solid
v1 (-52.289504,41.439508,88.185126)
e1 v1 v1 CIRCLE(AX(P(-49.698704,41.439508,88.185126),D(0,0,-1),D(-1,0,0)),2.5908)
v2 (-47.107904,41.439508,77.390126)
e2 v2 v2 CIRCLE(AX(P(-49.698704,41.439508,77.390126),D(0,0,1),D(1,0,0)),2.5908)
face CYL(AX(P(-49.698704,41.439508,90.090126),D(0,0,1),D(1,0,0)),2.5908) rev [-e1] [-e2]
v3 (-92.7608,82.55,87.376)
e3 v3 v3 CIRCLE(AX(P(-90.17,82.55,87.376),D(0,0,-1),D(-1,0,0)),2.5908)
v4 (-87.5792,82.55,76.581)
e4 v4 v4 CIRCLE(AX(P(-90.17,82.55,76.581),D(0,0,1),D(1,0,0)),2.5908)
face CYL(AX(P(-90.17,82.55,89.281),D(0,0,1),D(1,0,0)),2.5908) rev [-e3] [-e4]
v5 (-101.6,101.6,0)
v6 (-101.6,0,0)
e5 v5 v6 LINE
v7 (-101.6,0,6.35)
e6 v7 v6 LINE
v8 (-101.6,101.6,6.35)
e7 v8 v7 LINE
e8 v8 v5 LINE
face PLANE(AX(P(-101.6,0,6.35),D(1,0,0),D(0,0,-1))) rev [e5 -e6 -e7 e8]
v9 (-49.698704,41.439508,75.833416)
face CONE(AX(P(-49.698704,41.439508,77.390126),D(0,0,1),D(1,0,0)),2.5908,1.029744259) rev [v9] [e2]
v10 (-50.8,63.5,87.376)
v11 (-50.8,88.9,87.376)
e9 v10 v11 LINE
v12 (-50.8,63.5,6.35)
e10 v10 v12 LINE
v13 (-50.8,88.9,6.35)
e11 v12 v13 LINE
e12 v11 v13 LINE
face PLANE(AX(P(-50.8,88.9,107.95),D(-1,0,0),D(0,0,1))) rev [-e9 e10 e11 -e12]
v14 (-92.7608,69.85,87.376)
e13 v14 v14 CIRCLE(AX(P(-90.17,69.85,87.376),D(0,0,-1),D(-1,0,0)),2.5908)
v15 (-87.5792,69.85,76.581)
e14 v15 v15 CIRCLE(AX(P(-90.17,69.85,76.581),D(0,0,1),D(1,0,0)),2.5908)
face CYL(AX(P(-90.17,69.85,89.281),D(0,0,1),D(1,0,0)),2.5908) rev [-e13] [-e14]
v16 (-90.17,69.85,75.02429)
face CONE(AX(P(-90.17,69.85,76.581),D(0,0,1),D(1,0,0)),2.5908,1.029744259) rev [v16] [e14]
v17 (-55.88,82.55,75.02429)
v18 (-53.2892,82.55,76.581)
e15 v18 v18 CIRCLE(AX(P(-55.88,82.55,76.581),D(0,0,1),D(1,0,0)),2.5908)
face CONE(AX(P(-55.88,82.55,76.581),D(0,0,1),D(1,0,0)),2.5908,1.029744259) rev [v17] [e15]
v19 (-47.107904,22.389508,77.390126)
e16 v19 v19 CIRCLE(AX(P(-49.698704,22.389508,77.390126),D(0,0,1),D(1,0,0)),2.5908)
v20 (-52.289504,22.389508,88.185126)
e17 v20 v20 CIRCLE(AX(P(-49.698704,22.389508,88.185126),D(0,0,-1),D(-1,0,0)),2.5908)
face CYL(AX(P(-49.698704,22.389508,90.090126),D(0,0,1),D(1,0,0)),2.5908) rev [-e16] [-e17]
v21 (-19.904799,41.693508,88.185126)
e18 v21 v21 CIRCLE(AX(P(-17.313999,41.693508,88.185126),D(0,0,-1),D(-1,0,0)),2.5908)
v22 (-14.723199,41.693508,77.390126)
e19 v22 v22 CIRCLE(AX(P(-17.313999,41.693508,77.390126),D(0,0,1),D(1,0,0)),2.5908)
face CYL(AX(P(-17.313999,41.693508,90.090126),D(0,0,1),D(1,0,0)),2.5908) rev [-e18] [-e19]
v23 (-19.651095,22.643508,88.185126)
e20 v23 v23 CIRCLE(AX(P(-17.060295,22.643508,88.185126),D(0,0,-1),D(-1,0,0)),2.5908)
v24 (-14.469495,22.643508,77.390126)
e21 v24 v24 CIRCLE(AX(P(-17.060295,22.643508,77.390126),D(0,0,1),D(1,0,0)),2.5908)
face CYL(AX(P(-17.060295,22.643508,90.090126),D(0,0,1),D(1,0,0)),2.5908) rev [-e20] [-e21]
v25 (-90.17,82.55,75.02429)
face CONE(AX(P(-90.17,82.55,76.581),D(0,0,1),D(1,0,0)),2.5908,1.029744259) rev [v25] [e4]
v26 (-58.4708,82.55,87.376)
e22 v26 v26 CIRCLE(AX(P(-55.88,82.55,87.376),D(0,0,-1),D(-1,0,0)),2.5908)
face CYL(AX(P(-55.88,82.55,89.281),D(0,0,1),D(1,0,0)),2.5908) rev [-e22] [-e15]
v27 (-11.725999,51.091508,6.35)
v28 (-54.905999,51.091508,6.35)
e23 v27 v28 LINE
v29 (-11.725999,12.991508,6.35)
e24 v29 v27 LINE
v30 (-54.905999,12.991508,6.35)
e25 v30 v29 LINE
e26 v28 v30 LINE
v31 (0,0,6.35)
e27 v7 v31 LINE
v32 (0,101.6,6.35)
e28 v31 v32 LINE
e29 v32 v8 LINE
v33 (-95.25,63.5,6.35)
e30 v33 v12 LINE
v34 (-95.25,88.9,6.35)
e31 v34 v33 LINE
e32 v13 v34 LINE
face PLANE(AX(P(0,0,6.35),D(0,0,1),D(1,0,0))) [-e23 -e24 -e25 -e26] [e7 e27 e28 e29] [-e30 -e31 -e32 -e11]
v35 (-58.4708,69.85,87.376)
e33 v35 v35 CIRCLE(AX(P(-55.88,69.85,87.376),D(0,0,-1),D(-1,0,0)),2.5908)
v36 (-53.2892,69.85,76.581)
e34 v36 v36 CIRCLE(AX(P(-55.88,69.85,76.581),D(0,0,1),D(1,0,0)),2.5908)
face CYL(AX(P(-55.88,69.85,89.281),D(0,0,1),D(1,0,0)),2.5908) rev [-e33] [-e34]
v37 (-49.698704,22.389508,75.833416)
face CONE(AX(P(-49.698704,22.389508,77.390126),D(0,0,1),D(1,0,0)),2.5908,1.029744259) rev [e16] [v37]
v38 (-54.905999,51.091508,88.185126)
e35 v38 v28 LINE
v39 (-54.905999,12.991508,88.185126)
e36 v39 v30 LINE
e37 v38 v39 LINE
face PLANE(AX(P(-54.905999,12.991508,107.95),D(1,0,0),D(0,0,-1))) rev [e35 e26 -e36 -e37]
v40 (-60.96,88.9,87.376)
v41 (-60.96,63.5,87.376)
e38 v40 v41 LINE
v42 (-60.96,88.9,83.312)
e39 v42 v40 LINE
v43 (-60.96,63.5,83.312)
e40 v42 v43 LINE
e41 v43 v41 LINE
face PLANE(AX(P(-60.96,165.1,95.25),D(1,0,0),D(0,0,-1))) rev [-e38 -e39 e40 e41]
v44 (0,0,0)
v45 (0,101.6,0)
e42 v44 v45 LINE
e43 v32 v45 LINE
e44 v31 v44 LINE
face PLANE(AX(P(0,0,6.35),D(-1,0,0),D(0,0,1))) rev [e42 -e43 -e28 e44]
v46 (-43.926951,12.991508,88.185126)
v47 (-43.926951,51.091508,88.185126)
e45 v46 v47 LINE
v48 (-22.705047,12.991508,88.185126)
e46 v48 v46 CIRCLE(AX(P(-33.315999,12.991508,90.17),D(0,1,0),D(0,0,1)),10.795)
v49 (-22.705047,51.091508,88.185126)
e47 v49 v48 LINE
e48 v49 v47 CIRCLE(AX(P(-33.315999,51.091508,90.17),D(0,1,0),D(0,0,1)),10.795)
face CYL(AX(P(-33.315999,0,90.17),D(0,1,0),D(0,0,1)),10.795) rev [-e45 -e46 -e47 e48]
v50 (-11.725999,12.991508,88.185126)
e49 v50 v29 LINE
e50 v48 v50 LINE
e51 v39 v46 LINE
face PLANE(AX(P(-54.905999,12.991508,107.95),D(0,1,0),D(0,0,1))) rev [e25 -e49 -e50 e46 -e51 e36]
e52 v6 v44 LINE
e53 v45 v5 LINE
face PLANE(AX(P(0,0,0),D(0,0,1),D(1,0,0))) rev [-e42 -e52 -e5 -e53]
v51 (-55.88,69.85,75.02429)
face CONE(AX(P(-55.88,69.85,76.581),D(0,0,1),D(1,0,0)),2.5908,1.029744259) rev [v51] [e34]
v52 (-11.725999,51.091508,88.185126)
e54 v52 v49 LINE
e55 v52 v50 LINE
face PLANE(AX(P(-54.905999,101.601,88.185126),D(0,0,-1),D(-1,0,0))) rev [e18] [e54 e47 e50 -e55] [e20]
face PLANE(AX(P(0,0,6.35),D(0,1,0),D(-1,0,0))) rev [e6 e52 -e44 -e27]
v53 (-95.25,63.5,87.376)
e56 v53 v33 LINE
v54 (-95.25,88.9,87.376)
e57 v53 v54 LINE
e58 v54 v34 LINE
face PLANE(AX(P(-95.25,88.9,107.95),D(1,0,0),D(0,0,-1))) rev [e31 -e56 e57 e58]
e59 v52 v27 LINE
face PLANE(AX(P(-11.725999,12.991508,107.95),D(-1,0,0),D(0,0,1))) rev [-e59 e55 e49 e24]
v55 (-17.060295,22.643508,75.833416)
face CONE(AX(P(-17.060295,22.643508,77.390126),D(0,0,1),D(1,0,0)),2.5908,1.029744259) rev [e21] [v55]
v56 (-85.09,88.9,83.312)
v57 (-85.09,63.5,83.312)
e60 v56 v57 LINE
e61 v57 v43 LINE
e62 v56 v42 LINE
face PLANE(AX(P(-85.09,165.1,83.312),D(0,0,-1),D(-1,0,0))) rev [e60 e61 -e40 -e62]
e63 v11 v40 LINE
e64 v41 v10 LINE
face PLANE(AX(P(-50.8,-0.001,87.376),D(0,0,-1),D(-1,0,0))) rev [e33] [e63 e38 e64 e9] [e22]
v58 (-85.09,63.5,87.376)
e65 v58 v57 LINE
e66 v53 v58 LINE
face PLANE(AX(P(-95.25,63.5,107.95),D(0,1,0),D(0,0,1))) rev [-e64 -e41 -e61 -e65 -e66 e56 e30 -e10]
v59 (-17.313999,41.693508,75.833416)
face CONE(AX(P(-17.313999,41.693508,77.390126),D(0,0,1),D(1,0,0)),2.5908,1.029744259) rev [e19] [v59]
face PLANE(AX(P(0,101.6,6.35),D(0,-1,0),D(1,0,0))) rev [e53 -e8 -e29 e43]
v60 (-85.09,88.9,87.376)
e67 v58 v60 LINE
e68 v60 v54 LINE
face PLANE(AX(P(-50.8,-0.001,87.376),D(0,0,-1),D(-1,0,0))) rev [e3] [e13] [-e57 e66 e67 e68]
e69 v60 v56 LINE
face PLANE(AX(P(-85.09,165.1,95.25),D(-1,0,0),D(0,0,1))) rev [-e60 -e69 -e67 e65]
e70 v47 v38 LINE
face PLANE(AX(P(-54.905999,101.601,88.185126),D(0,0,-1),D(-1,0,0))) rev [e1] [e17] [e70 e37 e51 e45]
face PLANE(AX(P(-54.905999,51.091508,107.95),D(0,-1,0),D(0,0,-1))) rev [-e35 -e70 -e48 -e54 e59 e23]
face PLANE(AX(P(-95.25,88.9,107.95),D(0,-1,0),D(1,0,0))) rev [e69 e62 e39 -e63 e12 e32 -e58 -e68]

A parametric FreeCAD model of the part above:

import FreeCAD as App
import Part
import Sketcher

V = App.Vector
Q = App.Units.Quantity

doc = App.newDocument("Part")
body = doc.addObject("PartDesign::Body", "Body")

# Sketch on XY plane
sketch1 = body.newObject("Sketcher::SketchObject", "Sketch")
sketch1.AttachmentSupport = (doc.getObject("XY_Plane"), [""])
sketch1.MapMode = "FlatFace"
sketch1.addGeometry(Part.LineSegment(V(-102, 102, 0), V(-102, 0, 0)), False)
sketch1.addGeometry(Part.LineSegment(V(-102, 0, 0), V(0, 0, 0)), False)
sketch1.addGeometry(Part.LineSegment(V(0, 0, 0), V(0, 102, 0)), False)
sketch1.addGeometry(Part.LineSegment(V(0, 102, 0), V(-102, 102, 0)), False)
sketch1.addConstraint(Sketcher.Constraint("Coincident", 0, 2, 1, 1))
sketch1.addConstraint(Sketcher.Constraint("Coincident", 1, 2, 2, 1))
sketch1.addConstraint(Sketcher.Constraint("Coincident", 2, 2, 3, 1))
sketch1.addConstraint(Sketcher.Constraint("Coincident", 3, 2, 0, 1))
sketch1.addConstraint(Sketcher.Constraint("Vertical", 0))
sketch1.addConstraint(Sketcher.Constraint("Horizontal", 1))
sketch1.addConstraint(Sketcher.Constraint("Vertical", 2))
sketch1.addConstraint(Sketcher.Constraint("Horizontal", 3))
sketch1.addConstraint(Sketcher.Constraint("Coincident", 1, 2, -1, 1))
sketch1.addConstraint(Sketcher.Constraint("Equal", 3, 0))
sketch1.addConstraint(Sketcher.Constraint("DistanceX", 1, 1, 1, 2, Q("4 in")))
pad1 = body.newObject("PartDesign::Pad", "Pad")
pad1.Profile = sketch1
pad1.Length = Q("0.25 in")

# Sketch on XY plane
sketch2 = body.newObject("Sketcher::SketchObject", "Sketch001")
sketch2.AttachmentSupport = (doc.getObject("XY_Plane"), [""])
sketch2.MapMode = "FlatFace"
sketch2.AttachmentOffset = App.Placement(V(0, 0, 0.25 * 25.4), App.Rotation())
sketch2.addGeometry(Part.LineSegment(V(-95, 89, 0), V(-95, 64, 0)), False)
sketch2.addGeometry(Part.LineSegment(V(-95, 64, 0), V(-51, 64, 0)), False)
sketch2.addGeometry(Part.LineSegment(V(-51, 64, 0), V(-51, 89, 0)), False)
sketch2.addGeometry(Part.LineSegment(V(-51, 89, 0), V(-95, 89, 0)), False)
sketch2.addConstraint(Sketcher.Constraint("Coincident", 0, 2, 1, 1))
sketch2.addConstraint(Sketcher.Constraint("Coincident", 1, 2, 2, 1))
sketch2.addConstraint(Sketcher.Constraint("Coincident", 2, 2, 3, 1))
sketch2.addConstraint(Sketcher.Constraint("Coincident", 3, 2, 0, 1))
sketch2.addConstraint(Sketcher.Constraint("Vertical", 0))
sketch2.addConstraint(Sketcher.Constraint("Horizontal", 1))
sketch2.addConstraint(Sketcher.Constraint("Vertical", 2))
sketch2.addConstraint(Sketcher.Constraint("Horizontal", 3))
sketch2.addConstraint(Sketcher.Constraint("DistanceY", 0, 2, 0, 1, Q("1 in")))
sketch2.addConstraint(Sketcher.Constraint("DistanceX", 1, 2, -1, 1, Q("2 in")))
sketch2.addConstraint(Sketcher.Constraint("DistanceX", 1, 1, 1, 2, Q("1.75 in")))
sketch2.addConstraint(Sketcher.Constraint("DistanceY", -1, 1, 0, 2, Q("2.5 in")))
pad2 = body.newObject("PartDesign::Pad", "Pad001")
pad2.Profile = sketch2
pad2.Length = Q("4 in")

# Sketch on XZ plane
sketch3 = body.newObject("Sketcher::SketchObject", "Sketch002")
sketch3.AttachmentSupport = (doc.getObject("XZ_Plane"), [""])
sketch3.MapMode = "FlatFace"
sketch3.AttachmentOffset = App.Placement(V(0, 0, -2.5 * 25.4), App.Rotation())
sketch3.addGeometry(Part.LineSegment(V(-85, 95, 0), V(-85, 83, 0)), False)
sketch3.addGeometry(Part.LineSegment(V(-85, 83, 0), V(-61, 83, 0)), False)
sketch3.addGeometry(Part.LineSegment(V(-61, 83, 0), V(-61, 95, 0)), False)
sketch3.addGeometry(Part.LineSegment(V(-61, 95, 0), V(-85, 95, 0)), False)
sketch3.addConstraint(Sketcher.Constraint("Coincident", 0, 2, 1, 1))
sketch3.addConstraint(Sketcher.Constraint("Coincident", 1, 2, 2, 1))
sketch3.addConstraint(Sketcher.Constraint("Coincident", 2, 2, 3, 1))
sketch3.addConstraint(Sketcher.Constraint("Coincident", 3, 2, 0, 1))
sketch3.addConstraint(Sketcher.Constraint("Vertical", 0))
sketch3.addConstraint(Sketcher.Constraint("Horizontal", 1))
sketch3.addConstraint(Sketcher.Constraint("Vertical", 2))
sketch3.addConstraint(Sketcher.Constraint("Horizontal", 3))
sketch3.addConstraint(Sketcher.Constraint("DistanceX", 1, 1, 1, 2, Q("0.95 in")))
sketch3.addConstraint(Sketcher.Constraint("DistanceY", 0, 2, 0, 1, Q("0.47 in")))
sketch3.addConstraint(Sketcher.Constraint("DistanceX", 1, 2, -1, 1, Q("2.4 in")))
sketch3.addConstraint(Sketcher.Constraint("DistanceY", -1, 1, 0, 2, Q("3.28 in")))
pocket1 = body.newObject("PartDesign::Pocket", "Pocket")
pocket1.Profile = sketch3
pocket1.Length = Q("4 in")

# Sketch on XY plane
sketch4 = body.newObject("Sketcher::SketchObject", "Sketch003")
sketch4.AttachmentSupport = (doc.getObject("XY_Plane"), [""])
sketch4.MapMode = "FlatFace"
sketch4.AttachmentOffset = App.Placement(V(0, 0, 0.25 * 25.4), App.Rotation())
sketch4.addGeometry(Part.LineSegment(V(-55, 51, 0), V(-55, 13, 0)), False)
sketch4.addGeometry(Part.LineSegment(V(-55, 13, 0), V(-12, 13, 0)), False)
sketch4.addGeometry(Part.LineSegment(V(-12, 13, 0), V(-12, 51, 0)), False)
sketch4.addGeometry(Part.LineSegment(V(-12, 51, 0), V(-55, 51, 0)), False)
sketch4.addConstraint(Sketcher.Constraint("Coincident", 0, 2, 1, 1))
sketch4.addConstraint(Sketcher.Constraint("Coincident", 1, 2, 2, 1))
sketch4.addConstraint(Sketcher.Constraint("Coincident", 2, 2, 3, 1))
sketch4.addConstraint(Sketcher.Constraint("Coincident", 3, 2, 0, 1))
sketch4.addConstraint(Sketcher.Constraint("Vertical", 0))
sketch4.addConstraint(Sketcher.Constraint("Horizontal", 1))
sketch4.addConstraint(Sketcher.Constraint("Vertical", 2))
sketch4.addConstraint(Sketcher.Constraint("Horizontal", 3))
sketch4.addConstraint(Sketcher.Constraint("DistanceX", 1, 1, 1, 2, Q("1.7 in")))
sketch4.addConstraint(Sketcher.Constraint("DistanceY", 0, 2, 0, 1, Q("1.5 in")))
sketch4.addConstraint(Sketcher.Constraint("DistanceX", 0, 2, -1, 1, 54.905999))
sketch4.addConstraint(Sketcher.Constraint("DistanceY", -1, 1, 0, 2, 12.991508))
pad3 = body.newObject("PartDesign::Pad", "Pad002")
pad3.Profile = sketch4
pad3.Length = Q("4 in")

# Sketch on XZ plane
sketch5 = body.newObject("Sketcher::SketchObject", "Sketch004")
sketch5.AttachmentSupport = (doc.getObject("XZ_Plane"), [""])
sketch5.MapMode = "FlatFace"
sketch5.AttachmentOffset = App.Placement(V(0, 0, -51.091508), App.Rotation())
sketch5.addGeometry(Part.Circle(V(-33, 90, 0), V(0, 0, 1), 11), False)
sketch5.addConstraint(Sketcher.Constraint("Diameter", 0, Q("0.85 in")))
sketch5.addConstraint(Sketcher.Constraint("DistanceY", -1, 1, 0, 3, Q("3.55 in")))
sketch5.addConstraint(Sketcher.Constraint("DistanceX", 0, 3, -1, 1, 33.315999))
pocket2 = body.newObject("PartDesign::Pocket", "Pocket001")
pocket2.Profile = sketch5
pocket2.Type = "ThroughAll"
pocket2.Reversed = True

# Sketch on XZ plane
sketch6 = body.newObject("Sketcher::SketchObject", "Sketch005")
sketch6.AttachmentSupport = (doc.getObject("XZ_Plane"), [""])
sketch6.MapMode = "FlatFace"
sketch6.AttachmentOffset = App.Placement(V(0, 0, -51.091508), App.Rotation())
sketch6.addGeometry(Part.LineSegment(V(-55, 90, 0), V(-55, 108, 0)), False)
sketch6.addGeometry(Part.LineSegment(V(-55, 108, 0), V(-12, 108, 0)), False)
sketch6.addGeometry(Part.LineSegment(V(-12, 108, 0), V(-12, 90, 0)), False)
sketch6.addGeometry(Part.LineSegment(V(-12, 90, 0), V(-55, 90, 0)), False)
sketch6.addConstraint(Sketcher.Constraint("Coincident", 0, 2, 1, 1))
sketch6.addConstraint(Sketcher.Constraint("Coincident", 1, 2, 2, 1))
sketch6.addConstraint(Sketcher.Constraint("Coincident", 2, 2, 3, 1))
sketch6.addConstraint(Sketcher.Constraint("Coincident", 3, 2, 0, 1))
sketch6.addConstraint(Sketcher.Constraint("Vertical", 0))
sketch6.addConstraint(Sketcher.Constraint("Horizontal", 1))
sketch6.addConstraint(Sketcher.Constraint("Vertical", 2))
sketch6.addConstraint(Sketcher.Constraint("Horizontal", 3))
sketch6.addConstraint(Sketcher.Constraint("DistanceX", 1, 1, 1, 2, Q("1.7 in")))
sketch6.addConstraint(Sketcher.Constraint("DistanceY", -1, 1, 0, 2, Q("4.25 in")))
sketch6.addConstraint(Sketcher.Constraint("DistanceX", 0, 2, -1, 1, 54.905999))
sketch6.addConstraint(Sketcher.Constraint("DistanceY", 0, 1, 0, 2, 17.859874))
pocket3 = body.newObject("PartDesign::Pocket", "Pocket002")
pocket3.Profile = sketch6
pocket3.Type = "ThroughAll"
pocket3.Reversed = True

# Sketch on XZ plane
sketch7 = body.newObject("Sketcher::SketchObject", "Sketch006")
sketch7.AttachmentSupport = (doc.getObject("XZ_Plane"), [""])
sketch7.MapMode = "FlatFace"
sketch7.AttachmentOffset = App.Placement(V(0, 0, -3.5 * 25.4), App.Rotation())
sketch7.addGeometry(Part.LineSegment(V(-95, 89, 0), V(-95, 108, 0)), False)
sketch7.addGeometry(Part.LineSegment(V(-95, 108, 0), V(-51, 108, 0)), False)
sketch7.addGeometry(Part.LineSegment(V(-51, 108, 0), V(-51, 89, 0)), False)
sketch7.addGeometry(Part.LineSegment(V(-51, 89, 0), V(-95, 89, 0)), False)
sketch7.addConstraint(Sketcher.Constraint("Coincident", 0, 2, 1, 1))
sketch7.addConstraint(Sketcher.Constraint("Coincident", 1, 2, 2, 1))
sketch7.addConstraint(Sketcher.Constraint("Coincident", 2, 2, 3, 1))
sketch7.addConstraint(Sketcher.Constraint("Coincident", 3, 2, 0, 1))
sketch7.addConstraint(Sketcher.Constraint("Vertical", 0))
sketch7.addConstraint(Sketcher.Constraint("Horizontal", 1))
sketch7.addConstraint(Sketcher.Constraint("Vertical", 2))
sketch7.addConstraint(Sketcher.Constraint("Horizontal", 3))
sketch7.addConstraint(Sketcher.Constraint("DistanceX", 1, 2, -1, 1, Q("2 in")))
sketch7.addConstraint(Sketcher.Constraint("DistanceX", 1, 1, 1, 2, Q("1.75 in")))
sketch7.addConstraint(Sketcher.Constraint("DistanceY", 0, 1, 0, 2, Q("0.735 in")))
sketch7.addConstraint(Sketcher.Constraint("DistanceY", -1, 1, 0, 2, Q("4.25 in")))
pocket4 = body.newObject("PartDesign::Pocket", "Pocket003")
pocket4.Profile = sketch7
pocket4.Type = "UpToFirst"
pocket4.Reversed = True

# Sketch on XY plane
sketch8 = body.newObject("Sketcher::SketchObject", "Sketch007")
sketch8.AttachmentSupport = (doc.getObject("XY_Plane"), [""])
sketch8.MapMode = "FlatFace"
sketch8.AttachmentOffset = App.Placement(V(0, 0, 90.090126), App.Rotation())
sketch8.addGeometry(Part.Circle(V(-17.1, 22.6, 0), V(0, 0, 1), 2.6), False)
sketch8.addGeometry(Part.Circle(V(-17.3, 41.7, 0), V(0, 0, 1), 2.6), False)
sketch8.addGeometry(Part.Circle(V(-49.7, 41.4, 0), V(0, 0, 1), 2.6), False)
sketch8.addGeometry(Part.Circle(V(-49.7, 22.4, 0), V(0, 0, 1), 2.6), False)
sketch8.addConstraint(Sketcher.Constraint("Equal", 0, 1))
sketch8.addConstraint(Sketcher.Constraint("Equal", 1, 2))
sketch8.addConstraint(Sketcher.Constraint("Equal", 2, 3))
sketch8.addConstraint(Sketcher.Constraint("Vertical", 2, 3, 3, 3))
sketch8.addConstraint(Sketcher.Constraint("Diameter", 0, Q("0.204 in")))
sketch8.addConstraint(Sketcher.Constraint("DistanceY", 0, 3, 1, 3, Q("0.75 in")))
sketch8.addConstraint(Sketcher.Constraint("DistanceY", 2, 3, 1, 3, Q("0.01 in")))
sketch8.addConstraint(Sketcher.Constraint("DistanceY", 3, 3, 2, 3, Q("0.75 in")))
sketch8.addConstraint(Sketcher.Constraint("DistanceX", 1, 3, -1, 1, 17.313999))
sketch8.addConstraint(Sketcher.Constraint("DistanceX", 2, 3, 0, 3, 32.638409))
sketch8.addConstraint(Sketcher.Constraint("DistanceX", 0, 3, -1, 1, 17.060295))
sketch8.addConstraint(Sketcher.Constraint("DistanceY", -1, 1, 0, 3, 22.643508))
doc.recompute()
hole = body.newObject("PartDesign::Hole", "Hole")
hole.Profile = sketch8
hole.ThreadType = "None"
hole.Diameter = Q("0.204 in")
hole.DepthType = "Dimension"
hole.Depth = Q("0.5 in")
hole.DrillPoint = "Angled"
hole.DrillPointAngle = 118

# Sketch on XY plane
sketch9 = body.newObject("Sketcher::SketchObject", "Sketch008")
sketch9.AttachmentSupport = (doc.getObject("XY_Plane"), [""])
sketch9.MapMode = "FlatFace"
sketch9.AttachmentOffset = App.Placement(V(0, 0, 3.515 * 25.4), App.Rotation())
sketch9.addGeometry(Part.Circle(V(-55.9, 82.5, 0), V(0, 0, 1), 2.6), False)
sketch9.addGeometry(Part.Circle(V(-55.9, 69.8, 0), V(0, 0, 1), 2.6), False)
sketch9.addGeometry(Part.Circle(V(-90.2, 82.5, 0), V(0, 0, 1), 2.6), False)
sketch9.addGeometry(Part.Circle(V(-90.2, 69.8, 0), V(0, 0, 1), 2.6), False)
sketch9.addConstraint(Sketcher.Constraint("Equal", 0, 1))
sketch9.addConstraint(Sketcher.Constraint("Equal", 1, 2))
sketch9.addConstraint(Sketcher.Constraint("Equal", 2, 3))
sketch9.addConstraint(Sketcher.Constraint("Horizontal", 0, 3, 2, 3))
sketch9.addConstraint(Sketcher.Constraint("Horizontal", 1, 3, 3, 3))
sketch9.addConstraint(Sketcher.Constraint("Vertical", 0, 3, 1, 3))
sketch9.addConstraint(Sketcher.Constraint("Vertical", 2, 3, 3, 3))
sketch9.addConstraint(Sketcher.Constraint("Diameter", 0, Q("0.204 in")))
sketch9.addConstraint(Sketcher.Constraint("DistanceX", 0, 3, -1, 1, Q("2.2 in")))
sketch9.addConstraint(Sketcher.Constraint("DistanceY", 1, 3, 0, 3, Q("0.5 in")))
sketch9.addConstraint(Sketcher.Constraint("DistanceY", -1, 1, 0, 3, Q("3.25 in")))
sketch9.addConstraint(Sketcher.Constraint("DistanceX", 2, 3, -1, 1, Q("3.55 in")))
doc.recompute()
hole2 = body.newObject("PartDesign::Hole", "Hole001")
hole2.Profile = sketch9
hole2.ThreadType = "None"
hole2.Diameter = Q("0.204 in")
hole2.DepthType = "Dimension"
hole2.Depth = Q("0.5 in")
hole2.DrillPoint = "Angled"
hole2.DrillPointAngle = 118

# Sketch on XZ plane
sketch10 = body.newObject("Sketcher::SketchObject", "Sketch009")
sketch10.AttachmentSupport = (doc.getObject("XZ_Plane"), [""])
sketch10.MapMode = "FlatFace"
sketch10.AttachmentOffset = App.Placement(V(0, 0, -51.091508), App.Rotation())
sketch10.addGeometry(Part.LineSegment(V(-54.9, 90.1, 0), V(-54.9, 88.2, 0)), False)
sketch10.addGeometry(Part.LineSegment(V(-54.9, 88.2, 0), V(-11.7, 88.2, 0)), False)
sketch10.addGeometry(Part.LineSegment(V(-11.7, 88.2, 0), V(-11.7, 90.1, 0)), False)
sketch10.addGeometry(Part.LineSegment(V(-11.7, 90.1, 0), V(-54.9, 90.1, 0)), False)
sketch10.addConstraint(Sketcher.Constraint("Coincident", 0, 2, 1, 1))
sketch10.addConstraint(Sketcher.Constraint("Coincident", 1, 2, 2, 1))
sketch10.addConstraint(Sketcher.Constraint("Coincident", 2, 2, 3, 1))
sketch10.addConstraint(Sketcher.Constraint("Coincident", 3, 2, 0, 1))
sketch10.addConstraint(Sketcher.Constraint("Vertical", 0))
sketch10.addConstraint(Sketcher.Constraint("Horizontal", 1))
sketch10.addConstraint(Sketcher.Constraint("Vertical", 2))
sketch10.addConstraint(Sketcher.Constraint("Horizontal", 3))
sketch10.addConstraint(Sketcher.Constraint("DistanceX", 1, 1, 1, 2, Q("1.7 in")))
sketch10.addConstraint(Sketcher.Constraint("DistanceY", 0, 2, 0, 1, Q("0.075 in")))
sketch10.addConstraint(Sketcher.Constraint("DistanceX", 0, 2, -1, 1, 54.905999))
sketch10.addConstraint(Sketcher.Constraint("DistanceY", -1, 1, 0, 2, 88.185126))
pocket5 = body.newObject("PartDesign::Pocket", "Pocket004")
pocket5.Profile = sketch10
pocket5.Length = Q("1.5 in")
pocket5.Reversed = True

# Sketch on XZ plane
sketch11 = body.newObject("Sketcher::SketchObject", "Sketch010")
sketch11.AttachmentSupport = (doc.getObject("XZ_Plane"), [""])
sketch11.MapMode = "FlatFace"
sketch11.AttachmentOffset = App.Placement(V(0, 0, -2.5 * 25.4), App.Rotation())
sketch11.addGeometry(Part.LineSegment(V(-95.2, 87.4, 0), V(-95.2, 89.3, 0)), False)
sketch11.addGeometry(Part.LineSegment(V(-95.2, 89.3, 0), V(-50.8, 89.3, 0)), False)
sketch11.addGeometry(Part.LineSegment(V(-50.8, 89.3, 0), V(-50.8, 87.4, 0)), False)
sketch11.addGeometry(Part.LineSegment(V(-50.8, 87.4, 0), V(-95.2, 87.4, 0)), False)
sketch11.addConstraint(Sketcher.Constraint("Coincident", 0, 2, 1, 1))
sketch11.addConstraint(Sketcher.Constraint("Coincident", 1, 2, 2, 1))
sketch11.addConstraint(Sketcher.Constraint("Coincident", 2, 2, 3, 1))
sketch11.addConstraint(Sketcher.Constraint("Coincident", 3, 2, 0, 1))
sketch11.addConstraint(Sketcher.Constraint("Vertical", 0))
sketch11.addConstraint(Sketcher.Constraint("Horizontal", 1))
sketch11.addConstraint(Sketcher.Constraint("Vertical", 2))
sketch11.addConstraint(Sketcher.Constraint("Horizontal", 3))
sketch11.addConstraint(Sketcher.Constraint("DistanceX", 1, 2, -1, 1, Q("2 in")))
sketch11.addConstraint(Sketcher.Constraint("DistanceX", 1, 1, 1, 2, Q("1.75 in")))
sketch11.addConstraint(Sketcher.Constraint("DistanceY", 0, 1, 0, 2, Q("0.075 in")))
sketch11.addConstraint(Sketcher.Constraint("DistanceY", -1, 1, 2, 2, Q("3.44 in")))
pocket6 = body.newObject("PartDesign::Pocket", "Pocket005")
pocket6.Profile = sketch11
pocket6.Length = Q("1 in")

doc.recompute()
